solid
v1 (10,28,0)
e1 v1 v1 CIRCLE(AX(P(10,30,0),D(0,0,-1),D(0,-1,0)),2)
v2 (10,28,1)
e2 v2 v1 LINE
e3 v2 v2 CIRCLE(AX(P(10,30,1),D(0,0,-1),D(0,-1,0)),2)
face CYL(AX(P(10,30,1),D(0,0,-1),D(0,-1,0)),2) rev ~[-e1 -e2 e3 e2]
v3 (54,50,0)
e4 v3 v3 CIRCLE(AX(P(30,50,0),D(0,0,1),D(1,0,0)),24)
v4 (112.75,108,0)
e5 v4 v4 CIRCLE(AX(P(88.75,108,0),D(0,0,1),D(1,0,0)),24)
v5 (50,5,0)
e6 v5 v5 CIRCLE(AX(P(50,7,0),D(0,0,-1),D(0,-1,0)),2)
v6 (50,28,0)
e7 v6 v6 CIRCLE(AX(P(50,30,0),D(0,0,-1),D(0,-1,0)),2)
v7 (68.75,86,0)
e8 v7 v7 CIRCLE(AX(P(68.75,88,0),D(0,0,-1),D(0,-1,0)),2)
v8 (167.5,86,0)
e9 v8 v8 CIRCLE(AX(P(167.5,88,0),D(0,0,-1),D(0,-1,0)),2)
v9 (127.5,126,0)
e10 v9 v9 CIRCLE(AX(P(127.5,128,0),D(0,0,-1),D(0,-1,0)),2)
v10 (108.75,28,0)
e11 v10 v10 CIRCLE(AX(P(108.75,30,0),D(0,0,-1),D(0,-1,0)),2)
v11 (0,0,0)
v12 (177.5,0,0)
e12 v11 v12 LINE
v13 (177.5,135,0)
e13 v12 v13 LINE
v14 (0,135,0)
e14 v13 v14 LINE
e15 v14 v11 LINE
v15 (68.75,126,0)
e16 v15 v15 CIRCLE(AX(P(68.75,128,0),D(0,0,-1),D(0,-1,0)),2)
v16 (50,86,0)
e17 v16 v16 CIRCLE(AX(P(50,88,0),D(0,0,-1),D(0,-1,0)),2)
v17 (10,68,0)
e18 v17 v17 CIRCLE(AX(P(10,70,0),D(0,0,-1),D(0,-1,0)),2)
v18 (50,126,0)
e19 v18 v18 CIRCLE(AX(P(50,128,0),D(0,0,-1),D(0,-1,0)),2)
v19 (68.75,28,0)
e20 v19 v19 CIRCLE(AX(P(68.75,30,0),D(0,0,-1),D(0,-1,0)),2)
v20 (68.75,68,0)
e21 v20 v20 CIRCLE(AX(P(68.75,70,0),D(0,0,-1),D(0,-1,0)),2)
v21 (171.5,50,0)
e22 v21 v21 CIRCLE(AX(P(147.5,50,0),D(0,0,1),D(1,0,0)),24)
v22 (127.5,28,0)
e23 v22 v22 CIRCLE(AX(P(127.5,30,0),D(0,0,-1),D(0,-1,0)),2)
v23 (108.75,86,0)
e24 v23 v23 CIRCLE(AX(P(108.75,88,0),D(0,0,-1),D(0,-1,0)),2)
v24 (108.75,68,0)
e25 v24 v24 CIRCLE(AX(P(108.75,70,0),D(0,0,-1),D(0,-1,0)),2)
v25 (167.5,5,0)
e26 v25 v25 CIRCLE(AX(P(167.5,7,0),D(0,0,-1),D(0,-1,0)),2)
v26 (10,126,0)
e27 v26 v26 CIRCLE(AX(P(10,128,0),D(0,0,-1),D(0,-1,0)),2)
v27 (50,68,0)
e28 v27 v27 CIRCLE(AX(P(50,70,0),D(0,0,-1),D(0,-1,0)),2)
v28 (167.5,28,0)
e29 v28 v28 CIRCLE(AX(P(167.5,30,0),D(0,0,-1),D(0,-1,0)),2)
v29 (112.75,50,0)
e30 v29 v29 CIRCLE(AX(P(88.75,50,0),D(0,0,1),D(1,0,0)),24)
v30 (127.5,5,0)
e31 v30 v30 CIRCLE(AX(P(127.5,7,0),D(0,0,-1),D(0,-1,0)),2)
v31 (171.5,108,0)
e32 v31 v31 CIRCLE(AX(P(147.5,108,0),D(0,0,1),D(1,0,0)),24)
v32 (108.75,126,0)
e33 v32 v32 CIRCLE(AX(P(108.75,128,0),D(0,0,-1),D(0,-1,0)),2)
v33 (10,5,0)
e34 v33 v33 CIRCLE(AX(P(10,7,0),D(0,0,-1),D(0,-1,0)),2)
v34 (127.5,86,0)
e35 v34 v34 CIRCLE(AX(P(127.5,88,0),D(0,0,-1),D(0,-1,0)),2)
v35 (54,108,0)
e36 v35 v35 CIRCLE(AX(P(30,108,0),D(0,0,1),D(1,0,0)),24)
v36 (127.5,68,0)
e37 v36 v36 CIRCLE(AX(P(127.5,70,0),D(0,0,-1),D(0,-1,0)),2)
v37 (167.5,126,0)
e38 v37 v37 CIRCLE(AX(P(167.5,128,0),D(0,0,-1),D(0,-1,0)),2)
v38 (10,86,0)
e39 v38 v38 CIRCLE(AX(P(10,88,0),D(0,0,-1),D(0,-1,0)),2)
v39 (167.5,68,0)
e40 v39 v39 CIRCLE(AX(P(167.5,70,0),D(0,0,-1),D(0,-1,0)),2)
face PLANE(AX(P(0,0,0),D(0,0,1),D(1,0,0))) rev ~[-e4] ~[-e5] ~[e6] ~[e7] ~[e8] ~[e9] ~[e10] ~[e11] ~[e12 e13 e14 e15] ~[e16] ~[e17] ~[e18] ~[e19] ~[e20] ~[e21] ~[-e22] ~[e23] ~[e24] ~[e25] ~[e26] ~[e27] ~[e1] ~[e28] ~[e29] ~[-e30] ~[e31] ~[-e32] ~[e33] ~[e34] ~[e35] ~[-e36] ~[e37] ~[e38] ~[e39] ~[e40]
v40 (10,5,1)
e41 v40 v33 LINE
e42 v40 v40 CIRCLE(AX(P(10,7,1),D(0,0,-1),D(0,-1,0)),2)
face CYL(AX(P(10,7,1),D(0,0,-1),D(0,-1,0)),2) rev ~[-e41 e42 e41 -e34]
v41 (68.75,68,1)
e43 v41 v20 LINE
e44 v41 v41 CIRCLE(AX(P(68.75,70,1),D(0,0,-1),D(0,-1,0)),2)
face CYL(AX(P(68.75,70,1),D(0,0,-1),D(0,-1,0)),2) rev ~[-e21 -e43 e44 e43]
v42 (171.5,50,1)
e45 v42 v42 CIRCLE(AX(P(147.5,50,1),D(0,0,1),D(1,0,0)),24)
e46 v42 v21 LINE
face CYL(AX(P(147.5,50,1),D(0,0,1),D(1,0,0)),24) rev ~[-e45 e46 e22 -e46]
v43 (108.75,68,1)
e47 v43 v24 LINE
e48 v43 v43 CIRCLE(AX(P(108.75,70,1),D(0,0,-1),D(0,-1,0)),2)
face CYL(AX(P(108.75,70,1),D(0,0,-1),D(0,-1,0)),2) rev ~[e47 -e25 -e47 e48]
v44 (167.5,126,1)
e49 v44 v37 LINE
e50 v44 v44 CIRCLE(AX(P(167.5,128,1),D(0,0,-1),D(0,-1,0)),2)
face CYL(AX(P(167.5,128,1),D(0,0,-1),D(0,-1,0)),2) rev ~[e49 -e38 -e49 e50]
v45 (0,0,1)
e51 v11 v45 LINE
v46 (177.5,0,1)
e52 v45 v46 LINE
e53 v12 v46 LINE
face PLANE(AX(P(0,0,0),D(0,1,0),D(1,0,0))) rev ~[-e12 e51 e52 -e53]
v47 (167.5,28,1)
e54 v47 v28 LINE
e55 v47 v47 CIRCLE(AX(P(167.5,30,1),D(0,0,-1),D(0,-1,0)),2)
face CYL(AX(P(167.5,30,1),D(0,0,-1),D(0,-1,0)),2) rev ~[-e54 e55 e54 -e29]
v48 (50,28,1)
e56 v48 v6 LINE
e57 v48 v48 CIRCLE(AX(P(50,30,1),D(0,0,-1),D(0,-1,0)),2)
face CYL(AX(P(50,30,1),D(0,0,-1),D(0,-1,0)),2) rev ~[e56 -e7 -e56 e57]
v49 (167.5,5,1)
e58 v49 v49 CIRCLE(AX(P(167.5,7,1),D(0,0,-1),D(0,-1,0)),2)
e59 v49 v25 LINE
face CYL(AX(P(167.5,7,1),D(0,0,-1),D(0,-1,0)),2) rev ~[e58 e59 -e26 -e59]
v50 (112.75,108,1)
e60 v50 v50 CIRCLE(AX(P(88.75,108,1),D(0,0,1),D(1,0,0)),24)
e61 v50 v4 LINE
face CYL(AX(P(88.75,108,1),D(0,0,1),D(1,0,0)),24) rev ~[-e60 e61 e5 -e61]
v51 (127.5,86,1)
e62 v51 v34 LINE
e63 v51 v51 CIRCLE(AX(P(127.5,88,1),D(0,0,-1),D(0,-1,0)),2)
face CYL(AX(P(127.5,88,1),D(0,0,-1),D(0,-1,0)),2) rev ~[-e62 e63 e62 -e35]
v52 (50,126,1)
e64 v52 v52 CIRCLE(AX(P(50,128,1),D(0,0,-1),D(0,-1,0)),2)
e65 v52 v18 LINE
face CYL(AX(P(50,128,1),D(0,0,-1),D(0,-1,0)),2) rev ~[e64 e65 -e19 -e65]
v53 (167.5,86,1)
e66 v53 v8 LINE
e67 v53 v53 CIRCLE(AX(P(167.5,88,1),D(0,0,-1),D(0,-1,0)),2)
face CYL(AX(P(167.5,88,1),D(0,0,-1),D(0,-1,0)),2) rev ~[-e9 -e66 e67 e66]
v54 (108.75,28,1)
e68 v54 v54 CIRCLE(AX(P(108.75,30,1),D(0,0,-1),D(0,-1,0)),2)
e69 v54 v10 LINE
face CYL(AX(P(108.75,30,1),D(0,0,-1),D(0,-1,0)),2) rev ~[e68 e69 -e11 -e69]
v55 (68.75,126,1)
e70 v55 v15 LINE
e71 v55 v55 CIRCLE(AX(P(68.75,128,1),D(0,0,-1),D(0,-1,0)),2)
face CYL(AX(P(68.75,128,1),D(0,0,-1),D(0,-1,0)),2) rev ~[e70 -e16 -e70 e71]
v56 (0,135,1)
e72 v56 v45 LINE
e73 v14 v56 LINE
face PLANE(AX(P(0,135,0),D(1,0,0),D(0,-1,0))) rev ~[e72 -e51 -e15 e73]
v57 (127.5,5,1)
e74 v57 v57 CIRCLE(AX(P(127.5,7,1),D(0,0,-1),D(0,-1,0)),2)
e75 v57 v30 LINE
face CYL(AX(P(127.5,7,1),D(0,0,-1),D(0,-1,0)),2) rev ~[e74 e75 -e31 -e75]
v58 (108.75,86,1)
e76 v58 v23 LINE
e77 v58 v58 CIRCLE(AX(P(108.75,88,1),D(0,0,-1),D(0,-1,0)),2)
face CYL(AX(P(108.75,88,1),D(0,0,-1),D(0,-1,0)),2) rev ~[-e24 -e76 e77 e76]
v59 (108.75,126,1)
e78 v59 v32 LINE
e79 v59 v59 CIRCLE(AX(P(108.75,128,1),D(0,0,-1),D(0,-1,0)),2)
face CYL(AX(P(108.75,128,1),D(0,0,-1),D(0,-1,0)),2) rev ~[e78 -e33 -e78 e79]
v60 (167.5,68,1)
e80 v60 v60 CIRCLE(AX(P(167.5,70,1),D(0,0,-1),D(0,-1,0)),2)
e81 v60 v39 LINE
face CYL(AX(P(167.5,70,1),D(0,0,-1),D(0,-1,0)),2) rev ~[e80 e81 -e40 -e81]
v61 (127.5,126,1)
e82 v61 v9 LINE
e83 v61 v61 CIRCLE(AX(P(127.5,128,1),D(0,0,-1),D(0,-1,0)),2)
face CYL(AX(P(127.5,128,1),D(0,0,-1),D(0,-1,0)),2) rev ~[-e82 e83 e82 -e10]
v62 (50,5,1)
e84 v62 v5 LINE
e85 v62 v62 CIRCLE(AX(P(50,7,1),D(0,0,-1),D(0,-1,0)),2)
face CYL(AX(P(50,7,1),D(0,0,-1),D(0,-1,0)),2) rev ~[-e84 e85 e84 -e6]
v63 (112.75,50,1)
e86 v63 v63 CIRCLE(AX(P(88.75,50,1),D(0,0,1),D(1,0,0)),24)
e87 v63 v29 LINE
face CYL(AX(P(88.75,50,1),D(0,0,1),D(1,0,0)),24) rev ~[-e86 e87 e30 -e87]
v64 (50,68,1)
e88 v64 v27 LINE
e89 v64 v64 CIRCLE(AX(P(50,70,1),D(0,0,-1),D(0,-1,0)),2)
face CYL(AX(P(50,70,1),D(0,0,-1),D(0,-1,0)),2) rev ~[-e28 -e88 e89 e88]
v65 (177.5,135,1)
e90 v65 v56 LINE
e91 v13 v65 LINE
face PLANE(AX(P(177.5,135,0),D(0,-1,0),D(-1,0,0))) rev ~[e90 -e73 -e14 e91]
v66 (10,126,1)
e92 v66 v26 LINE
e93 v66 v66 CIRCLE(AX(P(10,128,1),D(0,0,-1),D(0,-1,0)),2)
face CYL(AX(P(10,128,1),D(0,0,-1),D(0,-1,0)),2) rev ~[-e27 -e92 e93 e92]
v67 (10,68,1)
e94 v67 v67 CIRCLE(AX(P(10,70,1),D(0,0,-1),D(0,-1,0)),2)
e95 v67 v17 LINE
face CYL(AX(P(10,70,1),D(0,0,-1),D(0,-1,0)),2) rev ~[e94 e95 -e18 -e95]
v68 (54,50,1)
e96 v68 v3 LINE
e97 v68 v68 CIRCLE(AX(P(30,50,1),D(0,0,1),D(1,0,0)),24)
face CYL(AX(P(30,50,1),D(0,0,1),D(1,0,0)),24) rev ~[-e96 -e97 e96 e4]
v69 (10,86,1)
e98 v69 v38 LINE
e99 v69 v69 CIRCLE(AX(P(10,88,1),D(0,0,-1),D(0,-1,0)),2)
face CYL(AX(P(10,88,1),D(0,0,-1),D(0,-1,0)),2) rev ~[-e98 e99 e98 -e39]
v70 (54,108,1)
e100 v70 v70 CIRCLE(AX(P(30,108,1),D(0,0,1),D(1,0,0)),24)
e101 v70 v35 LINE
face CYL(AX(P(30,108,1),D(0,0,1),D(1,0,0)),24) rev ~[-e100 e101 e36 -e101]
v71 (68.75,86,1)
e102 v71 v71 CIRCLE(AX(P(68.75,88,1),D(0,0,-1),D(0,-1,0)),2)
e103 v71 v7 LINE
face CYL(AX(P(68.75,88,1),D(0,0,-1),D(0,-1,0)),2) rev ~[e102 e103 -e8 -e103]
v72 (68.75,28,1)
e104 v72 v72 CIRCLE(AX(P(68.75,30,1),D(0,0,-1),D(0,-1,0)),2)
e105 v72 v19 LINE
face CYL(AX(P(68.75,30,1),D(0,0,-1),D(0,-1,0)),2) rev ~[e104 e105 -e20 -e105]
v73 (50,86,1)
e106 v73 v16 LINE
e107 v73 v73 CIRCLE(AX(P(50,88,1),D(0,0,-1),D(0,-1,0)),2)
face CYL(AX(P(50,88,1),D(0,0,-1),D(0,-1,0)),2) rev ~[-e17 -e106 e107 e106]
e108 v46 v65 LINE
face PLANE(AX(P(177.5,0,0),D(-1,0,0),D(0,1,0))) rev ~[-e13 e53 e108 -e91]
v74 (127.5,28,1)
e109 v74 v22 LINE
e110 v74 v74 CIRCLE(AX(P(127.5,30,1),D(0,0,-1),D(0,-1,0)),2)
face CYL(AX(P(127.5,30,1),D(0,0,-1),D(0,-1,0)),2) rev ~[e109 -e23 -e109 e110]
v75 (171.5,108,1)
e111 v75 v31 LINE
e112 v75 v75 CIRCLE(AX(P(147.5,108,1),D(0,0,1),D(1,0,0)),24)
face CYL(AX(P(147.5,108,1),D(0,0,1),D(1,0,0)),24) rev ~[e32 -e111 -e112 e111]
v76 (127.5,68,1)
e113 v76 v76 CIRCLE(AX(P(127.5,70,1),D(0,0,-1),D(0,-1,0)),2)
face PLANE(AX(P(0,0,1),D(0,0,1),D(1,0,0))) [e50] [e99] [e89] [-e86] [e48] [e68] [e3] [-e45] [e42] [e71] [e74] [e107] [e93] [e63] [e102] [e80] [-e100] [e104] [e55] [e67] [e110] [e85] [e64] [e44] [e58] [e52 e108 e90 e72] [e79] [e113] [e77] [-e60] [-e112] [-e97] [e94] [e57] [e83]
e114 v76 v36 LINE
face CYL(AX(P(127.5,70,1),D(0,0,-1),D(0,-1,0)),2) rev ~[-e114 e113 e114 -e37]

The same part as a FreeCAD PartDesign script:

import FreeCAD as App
import Part
import Sketcher

V = App.Vector
Q = App.Units.Quantity


def add_polygon(sketch, points):
    """Adds a closed chain of lines whose ends are joined by coincident constraints."""
    first, n = sketch.GeometryCount, len(points)
    for a, b in zip(points, points[1:] + points[:1]):
        sketch.addGeometry(Part.LineSegment(App.Vector(*a, 0), App.Vector(*b, 0)), False)
    for i in range(n):
        sketch.addConstraint(Sketcher.Constraint("Coincident", first + i, 2, first + (i + 1) % n, 1))

doc = App.newDocument("Part")
body = doc.addObject("PartDesign::Body", "Body")

# Sketch on XY plane
sketch1 = body.newObject("Sketcher::SketchObject", "Sketch")
sketch1.AttachmentSupport = (doc.getObject("XY_Plane"), [""])
sketch1.MapMode = "FlatFace"
add_polygon(sketch1, [(0, 135), (0, 0), (178, 0), (178, 135)])  # lines 0-3
sketch1.addConstraint([
    Sketcher.Constraint("Vertical", 0),
    Sketcher.Constraint("Horizontal", 1),
    Sketcher.Constraint("Vertical", 2),
    Sketcher.Constraint("Horizontal", 3),
    Sketcher.Constraint("Coincident", 0, 2, -1, 1),
    Sketcher.Constraint("DistanceY", 0, 2, 0, 1, Q("135 mm")),
    Sketcher.Constraint("DistanceX", 1, 1, 1, 2, Q("177.5 mm")),
])
pad1 = body.newObject("PartDesign::Pad", "Pad")
pad1.Profile = sketch1
pad1.Length = 1

# Sketch on XY plane
sketch2 = body.newObject("Sketcher::SketchObject", "Sketch001")
sketch2.AttachmentSupport = (doc.getObject("XY_Plane"), [""])
sketch2.MapMode = "FlatFace"
sketch2.AttachmentOffset = App.Placement(V(0, 0, 1), App.Rotation())
sketch2.addGeometry([
    Part.Circle(V(10, 128, 0), V(0, 0, 1), 2),  # 0
    Part.Circle(V(50, 128, 0), V(0, 0, 1), 2),  # 1
    Part.Circle(V(68.8, 128, 0), V(0, 0, 1), 2),  # 2
    Part.Circle(V(108.8, 128, 0), V(0, 0, 1), 2),  # 3
    Part.Circle(V(127.5, 128, 0), V(0, 0, 1), 2),  # 4
    Part.Circle(V(167.5, 128, 0), V(0, 0, 1), 2),  # 5
    Part.Circle(V(167.5, 88, 0), V(0, 0, 1), 2),  # 6
    Part.Circle(V(127.5, 88, 0), V(0, 0, 1), 2),  # 7
    Part.Circle(V(108.8, 88, 0), V(0, 0, 1), 2),  # 8
    Part.Circle(V(68.8, 88, 0), V(0, 0, 1), 2),  # 9
    Part.Circle(V(50, 88, 0), V(0, 0, 1), 2),  # 10
    Part.Circle(V(10, 88, 0), V(0, 0, 1), 2),  # 11
    Part.Circle(V(50, 30, 0), V(0, 0, 1), 2),  # 12
    Part.Circle(V(50, 70, 0), V(0, 0, 1), 2),  # 13
    Part.Circle(V(10, 70, 0), V(0, 0, 1), 2),  # 14
    Part.Circle(V(10, 30, 0), V(0, 0, 1), 2),  # 15
    Part.Circle(V(127.5, 30, 0), V(0, 0, 1), 2),  # 16
    Part.Circle(V(167.5, 30, 0), V(0, 0, 1), 2),  # 17
    Part.Circle(V(167.5, 70, 0), V(0, 0, 1), 2),  # 18
    Part.Circle(V(127.5, 70, 0), V(0, 0, 1), 2),  # 19
    Part.Circle(V(68.8, 70, 0), V(0, 0, 1), 2),  # 20
    Part.Circle(V(108.8, 70, 0), V(0, 0, 1), 2),  # 21
    Part.Circle(V(68.8, 30, 0), V(0, 0, 1), 2),  # 22
    Part.Circle(V(108.8, 30, 0), V(0, 0, 1), 2),  # 23
    Part.Circle(V(10, 7, 0), V(0, 0, 1), 2),  # 24
    Part.Circle(V(50, 7, 0), V(0, 0, 1), 2),  # 25
    Part.Circle(V(127.5, 7, 0), V(0, 0, 1), 2),  # 26
    Part.Circle(V(167.5, 7, 0), V(0, 0, 1), 2),  # 27
], False)
sketch2.addConstraint([
    Sketcher.Constraint("Equal", 0, 1),
    Sketcher.Constraint("Equal", 1, 2),
    Sketcher.Constraint("Equal", 2, 3),
    Sketcher.Constraint("Equal", 3, 4),
    Sketcher.Constraint("Equal", 4, 5),
    Sketcher.Constraint("Equal", 5, 6),
    Sketcher.Constraint("Equal", 6, 7),
    Sketcher.Constraint("Equal", 7, 8),
    Sketcher.Constraint("Equal", 8, 9),
    Sketcher.Constraint("Equal", 9, 10),
    Sketcher.Constraint("Equal", 10, 11),
    Sketcher.Constraint("Equal", 11, 12),
    Sketcher.Constraint("Equal", 12, 13),
    Sketcher.Constraint("Equal", 13, 14),
    Sketcher.Constraint("Equal", 14, 15),
    Sketcher.Constraint("Equal", 15, 16),
    Sketcher.Constraint("Equal", 16, 17),
    Sketcher.Constraint("Equal", 17, 18),
    Sketcher.Constraint("Equal", 18, 19),
    Sketcher.Constraint("Equal", 19, 20),
    Sketcher.Constraint("Equal", 20, 21),
    Sketcher.Constraint("Equal", 21, 22),
    Sketcher.Constraint("Equal", 22, 23),
    Sketcher.Constraint("Equal", 23, 24),
    Sketcher.Constraint("Equal", 24, 25),
    Sketcher.Constraint("Equal", 25, 26),
    Sketcher.Constraint("Equal", 26, 27),
    Sketcher.Constraint("Horizontal", 0, 3, 1, 3),
    Sketcher.Constraint("Horizontal", 1, 3, 2, 3),
    Sketcher.Constraint("Horizontal", 2, 3, 3, 3),
    Sketcher.Constraint("Horizontal", 3, 3, 4, 3),
    Sketcher.Constraint("Horizontal", 4, 3, 5, 3),
    Sketcher.Constraint("Horizontal", 6, 3, 7, 3),
    Sketcher.Constraint("Horizontal", 7, 3, 8, 3),
    Sketcher.Constraint("Horizontal", 8, 3, 9, 3),
    Sketcher.Constraint("Horizontal", 9, 3, 10, 3),
    Sketcher.Constraint("Horizontal", 10, 3, 11, 3),
    Sketcher.Constraint("Horizontal", 13, 3, 14, 3),
    Sketcher.Constraint("Horizontal", 12, 3, 15, 3),
    Sketcher.Constraint("Horizontal", 15, 3, 16, 3),
    Sketcher.Constraint("Horizontal", 16, 3, 17, 3),
    Sketcher.Constraint("Horizontal", 14, 3, 18, 3),
    Sketcher.Constraint("Horizontal", 18, 3, 19, 3),
    Sketcher.Constraint("Horizontal", 19, 3, 20, 3),
    Sketcher.Constraint("Horizontal", 20, 3, 21, 3),
    Sketcher.Constraint("Horizontal", 17, 3, 22, 3),
    Sketcher.Constraint("Horizontal", 22, 3, 23, 3),
    Sketcher.Constraint("Horizontal", 24, 3, 25, 3),
    Sketcher.Constraint("Horizontal", 25, 3, 26, 3),
    Sketcher.Constraint("Horizontal", 26, 3, 27, 3),
    Sketcher.Constraint("Vertical", 5, 3, 6, 3),
    Sketcher.Constraint("Vertical", 4, 3, 7, 3),
    Sketcher.Constraint("Vertical", 3, 3, 8, 3),
    Sketcher.Constraint("Vertical", 2, 3, 9, 3),
    Sketcher.Constraint("Vertical", 1, 3, 10, 3),
    Sketcher.Constraint("Vertical", 0, 3, 11, 3),
    Sketcher.Constraint("Vertical", 10, 3, 12, 3),
    Sketcher.Constraint("Vertical", 12, 3, 13, 3),
    Sketcher.Constraint("Vertical", 11, 3, 14, 3),
    Sketcher.Constraint("Vertical", 14, 3, 15, 3),
    Sketcher.Constraint("Vertical", 7, 3, 16, 3),
    Sketcher.Constraint("Vertical", 6, 3, 17, 3),
    Sketcher.Constraint("Vertical", 17, 3, 18, 3),
    Sketcher.Constraint("Vertical", 16, 3, 19, 3),
    Sketcher.Constraint("Vertical", 9, 3, 20, 3),
    Sketcher.Constraint("Vertical", 8, 3, 21, 3),
    Sketcher.Constraint("Vertical", 20, 3, 22, 3),
    Sketcher.Constraint("Vertical", 21, 3, 23, 3),
    Sketcher.Constraint("Vertical", 15, 3, 24, 3),
    Sketcher.Constraint("Vertical", 13, 3, 25, 3),
    Sketcher.Constraint("Vertical", 19, 3, 26, 3),
    Sketcher.Constraint("Vertical", 18, 3, 27, 3),
    Sketcher.Constraint("Diameter", 0, Q("4 mm")),
    Sketcher.Constraint("DistanceX", -1, 1, 0, 3, Q("10 mm")),
    Sketcher.Constraint("DistanceY", -1, 1, 0, 3, Q("128 mm")),
    Sketcher.Constraint("DistanceX", -1, 1, 1, 3, Q("50 mm")),
    Sketcher.Constraint("DistanceY", -1, 1, 6, 3, Q("88 mm")),
    Sketcher.Constraint("DistanceY", -1, 1, 12, 3, Q("30 mm")),
    Sketcher.Constraint("DistanceY", -1, 1, 13, 3, Q("70 mm")),
    Sketcher.Constraint("DistanceY", -1, 1, 24, 3, Q("7 mm")),
    Sketcher.Constraint("DistanceX", 2, 3, 3, 3, Q("40 mm")),
    Sketcher.Constraint("DistanceX", 4, 3, 5, 3, Q("40 mm")),
    Sketcher.Constraint("DistanceX", -1, 1, 4, 3, Q("127.5 mm")),
    Sketcher.Constraint("DistanceX", -1, 1, 2, 3, Q("68.75 mm")),
])
doc.recompute()
hole = body.newObject("PartDesign::Hole", "Hole")
hole.Profile = sketch2
hole.ThreadType = "None"
hole.Diameter = 4
hole.DepthType = "ThroughAll"

# Sketch on XY plane
sketch3 = body.newObject("Sketcher::SketchObject", "Sketch002")
sketch3.AttachmentSupport = (doc.getObject("XY_Plane"), [""])
sketch3.MapMode = "FlatFace"
sketch3.AttachmentOffset = App.Placement(V(0, 0, 1), App.Rotation())
sketch3.addGeometry([
    Part.Circle(V(30, 108, 0), V(0, 0, 1), 24),  # 0
    Part.Circle(V(89, 108, 0), V(0, 0, 1), 24),  # 1
    Part.Circle(V(148, 108, 0), V(0, 0, 1), 24),  # 2
    Part.Circle(V(148, 50, 0), V(0, 0, 1), 24),  # 3
    Part.Circle(V(30, 50, 0), V(0, 0, 1), 24),  # 4
    Part.Circle(V(89, 50, 0), V(0, 0, 1), 24),  # 5
], False)
sketch3.addConstraint([
    Sketcher.Constraint("Equal", 0, 1),
    Sketcher.Constraint("Equal", 1, 2),
    Sketcher.Constraint("Equal", 2, 3),
    Sketcher.Constraint("Equal", 3, 4),
    Sketcher.Constraint("Equal", 4, 5),
    Sketcher.Constraint("Horizontal", 0, 3, 1, 3),
    Sketcher.Constraint("Horizontal", 1, 3, 2, 3),
    Sketcher.Constraint("Horizontal", 3, 3, 4, 3),
    Sketcher.Constraint("Horizontal", 4, 3, 5, 3),
    Sketcher.Constraint("Vertical", 2, 3, 3, 3),
    Sketcher.Constraint("Vertical", 0, 3, 4, 3),
    Sketcher.Constraint("Vertical", 1, 3, 5, 3),
    Sketcher.Constraint("Diameter", 0, Q("48 mm")),
    Sketcher.Constraint("DistanceX", -1, 1, 0, 3, Q("30 mm")),
    Sketcher.Constraint("DistanceY", -1, 1, 0, 3, Q("108 mm")),
    Sketcher.Constraint("DistanceY", -1, 1, 3, 3, Q("50 mm")),
    Sketcher.Constraint("DistanceX", -1, 1, 2, 3, Q("147.5 mm")),
    Sketcher.Constraint("DistanceX", -1, 1, 1, 3, Q("88.75 mm")),
])
pocket1 = body.newObject("PartDesign::Pocket", "Pocket")
pocket1.Profile = sketch3
pocket1.Length = 48

doc.recompute()
